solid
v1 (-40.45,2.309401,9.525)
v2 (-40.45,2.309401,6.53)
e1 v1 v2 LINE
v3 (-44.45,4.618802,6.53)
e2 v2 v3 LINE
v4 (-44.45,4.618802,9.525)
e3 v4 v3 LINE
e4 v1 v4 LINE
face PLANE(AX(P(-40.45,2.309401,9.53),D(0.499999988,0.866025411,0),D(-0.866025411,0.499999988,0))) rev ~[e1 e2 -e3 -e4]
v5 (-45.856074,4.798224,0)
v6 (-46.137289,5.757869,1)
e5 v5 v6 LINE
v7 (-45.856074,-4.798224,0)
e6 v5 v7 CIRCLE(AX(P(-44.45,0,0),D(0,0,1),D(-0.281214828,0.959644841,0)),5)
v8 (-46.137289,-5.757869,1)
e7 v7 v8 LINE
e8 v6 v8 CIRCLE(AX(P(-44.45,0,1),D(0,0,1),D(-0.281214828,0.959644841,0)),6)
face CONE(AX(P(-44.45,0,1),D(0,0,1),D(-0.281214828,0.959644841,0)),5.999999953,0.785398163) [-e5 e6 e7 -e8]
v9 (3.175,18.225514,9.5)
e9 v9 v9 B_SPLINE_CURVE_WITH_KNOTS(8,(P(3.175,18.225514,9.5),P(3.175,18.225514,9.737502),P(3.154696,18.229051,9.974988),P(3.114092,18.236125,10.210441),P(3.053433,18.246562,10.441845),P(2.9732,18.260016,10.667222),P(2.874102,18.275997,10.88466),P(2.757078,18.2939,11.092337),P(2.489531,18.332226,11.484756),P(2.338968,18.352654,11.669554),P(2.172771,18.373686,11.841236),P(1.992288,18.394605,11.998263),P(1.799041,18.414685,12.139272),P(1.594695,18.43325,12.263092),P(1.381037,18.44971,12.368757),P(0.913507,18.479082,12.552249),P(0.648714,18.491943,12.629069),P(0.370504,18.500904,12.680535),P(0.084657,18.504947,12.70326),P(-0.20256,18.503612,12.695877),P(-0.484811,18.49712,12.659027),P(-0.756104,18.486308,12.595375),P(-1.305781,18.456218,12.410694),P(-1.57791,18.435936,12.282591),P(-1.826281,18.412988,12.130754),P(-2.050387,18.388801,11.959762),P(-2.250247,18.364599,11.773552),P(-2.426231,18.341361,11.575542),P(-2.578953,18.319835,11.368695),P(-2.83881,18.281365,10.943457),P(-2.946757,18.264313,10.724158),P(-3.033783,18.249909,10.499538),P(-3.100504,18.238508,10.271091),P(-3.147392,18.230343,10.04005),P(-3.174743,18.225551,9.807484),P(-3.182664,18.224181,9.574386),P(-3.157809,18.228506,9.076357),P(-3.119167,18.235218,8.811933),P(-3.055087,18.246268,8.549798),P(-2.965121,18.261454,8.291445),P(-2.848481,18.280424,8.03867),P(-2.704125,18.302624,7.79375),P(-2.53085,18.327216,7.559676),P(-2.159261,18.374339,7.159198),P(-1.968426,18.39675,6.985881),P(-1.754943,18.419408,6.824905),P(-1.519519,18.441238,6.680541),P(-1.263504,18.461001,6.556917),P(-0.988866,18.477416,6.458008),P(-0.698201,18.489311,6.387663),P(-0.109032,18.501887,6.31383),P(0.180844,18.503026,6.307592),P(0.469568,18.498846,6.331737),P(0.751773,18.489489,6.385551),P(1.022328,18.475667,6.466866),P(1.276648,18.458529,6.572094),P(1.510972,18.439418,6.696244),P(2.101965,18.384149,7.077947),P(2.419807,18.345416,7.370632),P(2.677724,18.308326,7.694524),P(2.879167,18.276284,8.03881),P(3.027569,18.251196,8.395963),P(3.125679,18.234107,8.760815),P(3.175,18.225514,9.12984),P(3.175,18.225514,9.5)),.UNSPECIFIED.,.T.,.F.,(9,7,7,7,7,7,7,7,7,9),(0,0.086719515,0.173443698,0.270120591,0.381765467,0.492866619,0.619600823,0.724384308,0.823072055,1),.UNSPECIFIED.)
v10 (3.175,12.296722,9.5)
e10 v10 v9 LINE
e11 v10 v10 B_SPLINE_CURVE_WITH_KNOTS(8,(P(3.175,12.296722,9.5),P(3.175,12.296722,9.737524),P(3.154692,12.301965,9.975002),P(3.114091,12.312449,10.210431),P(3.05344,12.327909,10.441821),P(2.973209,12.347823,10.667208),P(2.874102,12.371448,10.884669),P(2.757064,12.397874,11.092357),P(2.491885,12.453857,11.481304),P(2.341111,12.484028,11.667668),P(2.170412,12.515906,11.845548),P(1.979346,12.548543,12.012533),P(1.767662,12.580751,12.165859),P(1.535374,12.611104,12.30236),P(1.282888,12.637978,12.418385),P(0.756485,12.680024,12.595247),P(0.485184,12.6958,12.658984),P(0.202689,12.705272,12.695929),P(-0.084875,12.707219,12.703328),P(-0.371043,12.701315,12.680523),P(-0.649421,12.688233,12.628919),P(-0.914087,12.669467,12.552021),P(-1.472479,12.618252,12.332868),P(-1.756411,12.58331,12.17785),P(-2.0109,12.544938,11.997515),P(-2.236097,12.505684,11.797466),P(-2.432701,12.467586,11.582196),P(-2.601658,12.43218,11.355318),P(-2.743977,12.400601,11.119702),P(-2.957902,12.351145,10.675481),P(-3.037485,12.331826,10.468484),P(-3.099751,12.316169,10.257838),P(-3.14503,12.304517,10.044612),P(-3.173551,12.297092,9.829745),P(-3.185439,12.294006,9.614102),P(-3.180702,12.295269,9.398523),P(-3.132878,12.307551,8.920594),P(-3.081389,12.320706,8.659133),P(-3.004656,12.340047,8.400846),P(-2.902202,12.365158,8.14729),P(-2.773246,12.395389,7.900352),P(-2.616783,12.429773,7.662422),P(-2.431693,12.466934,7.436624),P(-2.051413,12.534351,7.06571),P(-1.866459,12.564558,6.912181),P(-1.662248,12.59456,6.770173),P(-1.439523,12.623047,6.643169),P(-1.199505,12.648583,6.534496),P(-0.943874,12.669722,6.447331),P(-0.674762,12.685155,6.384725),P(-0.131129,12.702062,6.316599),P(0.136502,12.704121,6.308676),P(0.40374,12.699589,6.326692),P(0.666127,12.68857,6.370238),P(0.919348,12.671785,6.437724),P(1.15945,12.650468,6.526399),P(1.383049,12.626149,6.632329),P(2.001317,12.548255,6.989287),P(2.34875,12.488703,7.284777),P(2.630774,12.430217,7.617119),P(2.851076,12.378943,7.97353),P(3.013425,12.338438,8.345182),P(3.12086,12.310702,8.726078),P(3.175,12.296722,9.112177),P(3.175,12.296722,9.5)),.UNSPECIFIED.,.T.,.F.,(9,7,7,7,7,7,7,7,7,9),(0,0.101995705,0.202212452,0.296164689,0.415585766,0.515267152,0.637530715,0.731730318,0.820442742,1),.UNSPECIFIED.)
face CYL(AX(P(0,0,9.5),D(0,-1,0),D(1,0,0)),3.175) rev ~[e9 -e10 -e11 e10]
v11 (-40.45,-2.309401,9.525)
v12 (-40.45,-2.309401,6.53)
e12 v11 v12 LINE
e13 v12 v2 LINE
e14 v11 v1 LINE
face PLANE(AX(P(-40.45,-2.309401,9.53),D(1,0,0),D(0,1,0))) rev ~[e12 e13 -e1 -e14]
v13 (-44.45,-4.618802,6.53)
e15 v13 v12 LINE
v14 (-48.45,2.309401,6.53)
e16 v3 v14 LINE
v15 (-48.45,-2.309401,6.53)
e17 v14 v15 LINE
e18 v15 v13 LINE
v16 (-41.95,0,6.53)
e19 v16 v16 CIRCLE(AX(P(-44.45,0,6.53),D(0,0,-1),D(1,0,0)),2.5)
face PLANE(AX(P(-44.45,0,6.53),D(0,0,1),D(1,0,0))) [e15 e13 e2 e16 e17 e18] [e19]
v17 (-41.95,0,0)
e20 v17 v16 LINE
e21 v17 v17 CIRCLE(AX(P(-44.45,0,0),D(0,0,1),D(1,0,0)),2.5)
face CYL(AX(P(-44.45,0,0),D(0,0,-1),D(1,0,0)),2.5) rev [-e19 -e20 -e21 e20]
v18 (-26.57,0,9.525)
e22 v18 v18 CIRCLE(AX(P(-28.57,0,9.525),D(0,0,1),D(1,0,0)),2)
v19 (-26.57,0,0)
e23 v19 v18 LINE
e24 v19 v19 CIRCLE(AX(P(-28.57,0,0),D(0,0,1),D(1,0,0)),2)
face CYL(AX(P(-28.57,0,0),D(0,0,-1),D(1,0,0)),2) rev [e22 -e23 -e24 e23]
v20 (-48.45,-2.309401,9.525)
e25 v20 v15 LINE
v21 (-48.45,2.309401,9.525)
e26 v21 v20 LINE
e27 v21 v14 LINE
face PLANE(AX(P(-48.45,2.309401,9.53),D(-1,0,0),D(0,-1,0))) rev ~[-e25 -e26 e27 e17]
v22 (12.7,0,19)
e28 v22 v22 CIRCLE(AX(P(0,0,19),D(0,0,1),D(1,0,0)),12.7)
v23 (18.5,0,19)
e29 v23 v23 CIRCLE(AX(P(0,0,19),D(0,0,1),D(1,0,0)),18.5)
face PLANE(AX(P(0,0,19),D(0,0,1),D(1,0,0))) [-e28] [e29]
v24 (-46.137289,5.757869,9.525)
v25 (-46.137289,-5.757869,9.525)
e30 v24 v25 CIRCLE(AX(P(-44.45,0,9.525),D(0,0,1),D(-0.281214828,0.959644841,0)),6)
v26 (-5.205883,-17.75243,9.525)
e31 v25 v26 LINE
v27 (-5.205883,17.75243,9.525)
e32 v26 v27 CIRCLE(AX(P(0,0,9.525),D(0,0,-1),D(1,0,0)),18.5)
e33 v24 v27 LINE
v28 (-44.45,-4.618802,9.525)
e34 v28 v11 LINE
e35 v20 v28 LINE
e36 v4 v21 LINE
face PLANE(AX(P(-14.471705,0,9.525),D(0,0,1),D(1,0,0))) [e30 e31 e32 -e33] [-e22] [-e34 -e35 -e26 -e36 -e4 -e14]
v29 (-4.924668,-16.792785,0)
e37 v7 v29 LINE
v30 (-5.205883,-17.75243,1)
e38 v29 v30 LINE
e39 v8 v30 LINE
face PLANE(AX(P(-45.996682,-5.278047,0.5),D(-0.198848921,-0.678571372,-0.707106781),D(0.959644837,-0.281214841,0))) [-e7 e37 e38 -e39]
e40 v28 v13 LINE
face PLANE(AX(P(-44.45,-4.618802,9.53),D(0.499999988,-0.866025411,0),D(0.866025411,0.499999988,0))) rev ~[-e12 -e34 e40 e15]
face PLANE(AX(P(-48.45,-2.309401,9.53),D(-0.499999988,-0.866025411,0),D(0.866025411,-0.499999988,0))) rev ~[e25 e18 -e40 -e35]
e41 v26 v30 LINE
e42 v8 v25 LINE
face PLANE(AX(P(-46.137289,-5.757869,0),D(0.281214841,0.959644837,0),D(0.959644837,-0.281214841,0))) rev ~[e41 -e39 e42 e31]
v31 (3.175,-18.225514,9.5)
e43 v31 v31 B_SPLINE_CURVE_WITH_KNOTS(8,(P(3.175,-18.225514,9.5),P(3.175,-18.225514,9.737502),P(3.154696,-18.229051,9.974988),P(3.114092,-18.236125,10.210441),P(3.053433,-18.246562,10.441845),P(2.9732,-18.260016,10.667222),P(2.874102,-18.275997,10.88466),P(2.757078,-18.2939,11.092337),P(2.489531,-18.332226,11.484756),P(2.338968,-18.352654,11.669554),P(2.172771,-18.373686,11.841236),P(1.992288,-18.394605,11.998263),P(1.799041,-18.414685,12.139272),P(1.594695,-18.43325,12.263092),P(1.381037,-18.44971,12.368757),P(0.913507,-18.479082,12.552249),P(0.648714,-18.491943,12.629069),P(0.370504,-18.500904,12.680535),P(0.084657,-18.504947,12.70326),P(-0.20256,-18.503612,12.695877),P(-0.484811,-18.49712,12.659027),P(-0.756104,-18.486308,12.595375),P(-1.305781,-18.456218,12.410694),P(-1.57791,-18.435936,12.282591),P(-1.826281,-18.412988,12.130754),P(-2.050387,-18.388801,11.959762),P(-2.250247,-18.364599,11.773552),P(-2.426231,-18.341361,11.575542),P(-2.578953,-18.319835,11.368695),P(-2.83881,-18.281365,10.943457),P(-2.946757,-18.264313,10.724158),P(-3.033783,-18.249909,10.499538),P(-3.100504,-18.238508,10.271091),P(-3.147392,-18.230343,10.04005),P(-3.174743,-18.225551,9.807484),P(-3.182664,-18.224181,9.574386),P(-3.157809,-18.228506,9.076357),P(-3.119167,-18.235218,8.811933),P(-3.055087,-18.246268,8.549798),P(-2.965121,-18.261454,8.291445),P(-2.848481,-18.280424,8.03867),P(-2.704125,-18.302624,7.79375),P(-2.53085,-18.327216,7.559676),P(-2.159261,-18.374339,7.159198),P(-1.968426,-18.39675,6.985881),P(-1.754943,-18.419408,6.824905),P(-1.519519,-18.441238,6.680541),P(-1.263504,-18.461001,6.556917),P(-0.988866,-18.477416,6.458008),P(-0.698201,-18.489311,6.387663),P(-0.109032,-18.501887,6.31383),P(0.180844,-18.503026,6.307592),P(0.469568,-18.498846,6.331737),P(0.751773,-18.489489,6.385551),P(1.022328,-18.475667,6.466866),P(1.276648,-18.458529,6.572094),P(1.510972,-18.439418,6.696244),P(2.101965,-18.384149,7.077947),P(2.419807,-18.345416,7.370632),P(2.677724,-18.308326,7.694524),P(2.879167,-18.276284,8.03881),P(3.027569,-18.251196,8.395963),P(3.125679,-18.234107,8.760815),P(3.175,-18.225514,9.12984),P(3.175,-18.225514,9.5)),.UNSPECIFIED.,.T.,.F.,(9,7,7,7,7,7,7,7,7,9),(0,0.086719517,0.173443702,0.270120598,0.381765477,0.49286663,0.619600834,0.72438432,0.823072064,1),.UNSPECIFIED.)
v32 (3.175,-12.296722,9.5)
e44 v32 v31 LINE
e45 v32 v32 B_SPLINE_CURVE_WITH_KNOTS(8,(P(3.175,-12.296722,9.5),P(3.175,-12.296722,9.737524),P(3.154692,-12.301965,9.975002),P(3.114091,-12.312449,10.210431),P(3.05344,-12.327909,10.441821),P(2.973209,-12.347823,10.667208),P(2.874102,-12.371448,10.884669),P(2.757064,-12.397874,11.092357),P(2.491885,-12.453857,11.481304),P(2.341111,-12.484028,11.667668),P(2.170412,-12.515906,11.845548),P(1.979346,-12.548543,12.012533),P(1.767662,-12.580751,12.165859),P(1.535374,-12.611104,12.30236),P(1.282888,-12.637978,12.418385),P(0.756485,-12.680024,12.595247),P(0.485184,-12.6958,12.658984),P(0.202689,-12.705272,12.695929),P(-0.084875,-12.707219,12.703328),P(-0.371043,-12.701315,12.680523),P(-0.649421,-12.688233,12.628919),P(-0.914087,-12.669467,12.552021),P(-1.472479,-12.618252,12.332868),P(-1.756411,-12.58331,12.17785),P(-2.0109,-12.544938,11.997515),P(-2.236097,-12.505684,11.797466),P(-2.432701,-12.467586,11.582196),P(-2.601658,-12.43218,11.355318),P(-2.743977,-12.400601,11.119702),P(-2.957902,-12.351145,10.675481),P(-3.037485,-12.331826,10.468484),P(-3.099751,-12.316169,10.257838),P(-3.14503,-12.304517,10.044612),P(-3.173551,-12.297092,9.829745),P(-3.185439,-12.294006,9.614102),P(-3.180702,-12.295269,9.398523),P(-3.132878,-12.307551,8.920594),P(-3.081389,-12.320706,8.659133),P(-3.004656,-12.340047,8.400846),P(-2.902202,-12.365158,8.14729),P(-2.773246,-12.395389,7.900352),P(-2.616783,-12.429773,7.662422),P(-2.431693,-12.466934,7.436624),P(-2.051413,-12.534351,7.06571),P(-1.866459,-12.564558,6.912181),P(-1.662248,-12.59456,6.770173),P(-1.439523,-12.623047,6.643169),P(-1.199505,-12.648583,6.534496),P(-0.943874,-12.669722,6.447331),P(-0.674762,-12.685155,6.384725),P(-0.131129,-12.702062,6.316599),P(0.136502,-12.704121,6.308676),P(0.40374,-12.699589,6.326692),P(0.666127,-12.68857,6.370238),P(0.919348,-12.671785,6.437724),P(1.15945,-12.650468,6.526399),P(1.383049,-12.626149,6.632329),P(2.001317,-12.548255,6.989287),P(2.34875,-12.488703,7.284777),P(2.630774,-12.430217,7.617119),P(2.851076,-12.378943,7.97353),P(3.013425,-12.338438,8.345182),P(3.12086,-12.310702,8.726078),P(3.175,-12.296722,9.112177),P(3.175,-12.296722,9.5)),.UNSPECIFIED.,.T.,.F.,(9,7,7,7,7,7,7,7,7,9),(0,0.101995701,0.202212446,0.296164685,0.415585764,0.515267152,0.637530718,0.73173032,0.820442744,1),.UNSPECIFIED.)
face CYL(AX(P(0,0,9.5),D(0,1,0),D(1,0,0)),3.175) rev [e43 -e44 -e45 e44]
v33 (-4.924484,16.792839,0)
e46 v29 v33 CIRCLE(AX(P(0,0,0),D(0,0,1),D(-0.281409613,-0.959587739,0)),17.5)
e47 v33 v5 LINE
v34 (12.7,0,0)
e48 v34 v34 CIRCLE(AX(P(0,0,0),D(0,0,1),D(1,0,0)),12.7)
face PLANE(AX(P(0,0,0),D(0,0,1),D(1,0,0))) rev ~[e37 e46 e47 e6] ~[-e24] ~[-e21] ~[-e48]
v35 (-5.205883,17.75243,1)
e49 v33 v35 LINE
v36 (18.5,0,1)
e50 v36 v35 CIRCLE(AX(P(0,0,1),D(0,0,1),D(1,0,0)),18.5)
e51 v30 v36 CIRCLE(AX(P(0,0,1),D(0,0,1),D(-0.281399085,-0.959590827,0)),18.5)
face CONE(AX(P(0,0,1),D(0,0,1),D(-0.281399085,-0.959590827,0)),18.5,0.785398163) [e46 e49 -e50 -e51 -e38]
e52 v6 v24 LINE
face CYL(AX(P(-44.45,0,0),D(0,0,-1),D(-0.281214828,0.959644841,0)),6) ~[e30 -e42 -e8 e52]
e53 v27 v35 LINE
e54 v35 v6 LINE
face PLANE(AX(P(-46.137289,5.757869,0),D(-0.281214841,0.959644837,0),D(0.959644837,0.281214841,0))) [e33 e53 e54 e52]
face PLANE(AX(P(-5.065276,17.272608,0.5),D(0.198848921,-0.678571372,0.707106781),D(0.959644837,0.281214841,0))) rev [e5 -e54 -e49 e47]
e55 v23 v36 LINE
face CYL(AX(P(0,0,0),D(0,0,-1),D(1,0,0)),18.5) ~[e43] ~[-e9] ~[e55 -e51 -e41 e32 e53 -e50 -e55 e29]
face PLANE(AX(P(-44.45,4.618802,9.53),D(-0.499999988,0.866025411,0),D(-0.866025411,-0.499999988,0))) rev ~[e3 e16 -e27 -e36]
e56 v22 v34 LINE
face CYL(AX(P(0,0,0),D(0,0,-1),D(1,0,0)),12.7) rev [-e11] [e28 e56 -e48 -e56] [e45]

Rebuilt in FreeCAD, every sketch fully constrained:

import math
import FreeCAD as App
import Part
import Sketcher
from FreeCAD import Vector
Q = App.Units.Quantity


def edges_at(feature, points):
    """Names of the edges that pass closest to the given points."""
    edges = feature.Shape.Edges
    near = lambda p: min(range(len(edges)), key=lambda i: edges[i].distToShape(Part.Vertex(*p))[0])
    return sorted({f"Edge{near(p) + 1}" for p in points})

doc = App.newDocument("Part")
params = doc.addObject("Spreadsheet::Sheet", "Params")
for row, (alias, value) in enumerate([
    ("sketch1_diameter", "5 mm"),
    ("sketch1_diameter2", "4 mm"),
    ("sketch1_radius", "6 mm"),
    ("sketch1_diameter3", "25.4 mm"),
    ("sketch1_radius2", "18.5 mm"),
    ("pad1_length", "9.525 mm"),
    ("sketch2_diameter", "37 mm"),
    ("sketch2_diameter2", "25.4 mm"),
    ("pad2_length", "19 mm"),
    ("sketch3_diameter", "6.35 mm"),
    ("pocket2_length", "3 mm"),
    ("chamfer_size", "1 mm"),
], start=1):
    params.set(f"A{row}", alias)
    params.set(f"B{row}", "=" + value)
    params.setAlias(f"B{row}", alias)

body = doc.addObject("PartDesign::Body", "Body")

sketch1 = body.newObject("Sketcher::SketchObject", "Sketch")
sketch1.AttachmentSupport = (doc.getObject("XY_Plane"), [""])
sketch1.MapMode = "FlatFace"
sketch1.addGeometry([
    Part.ArcOfCircle(Part.Circle(Vector(-44.5, 0, 0), Vector(0, 0, 1), 6), math.radians(106), math.radians(254)),
    Part.LineSegment(Vector(-46.1, -5.8, 0), Vector(-5.2, -17.8, 0)),
    Part.ArcOfCircle(Part.Circle(Vector(0, 0, 0), Vector(0, 0, 1), 18.5), math.radians(-106), math.radians(106)),
    Part.LineSegment(Vector(-5.2, 17.8, 0), Vector(-46.1, 5.8, 0)),
    Part.Circle(Vector(-44.5, 0, 0), Vector(0, 0, 1), 2.5),
    Part.Circle(Vector(-28.6, 0, 0), Vector(0, 0, 1), 2),
    Part.Circle(Vector(0, 0, 0), Vector(0, 0, 1), 12.7),
], False)
sketch1.addConstraint([
    Sketcher.Constraint("Tangent", 0, 2, 1, 1),
    Sketcher.Constraint("Tangent", 1, 2, 2, 1),
    Sketcher.Constraint("Tangent", 2, 2, 3, 1),
    Sketcher.Constraint("Tangent", 3, 2, 0, 1),
    Sketcher.Constraint("Coincident", 2, 3, -1, 1),
    Sketcher.Constraint("Coincident", 6, 3, -1, 1),
    Sketcher.Constraint("Coincident", 4, 3, 0, 3),
    Sketcher.Constraint("PointOnObject", 0, 3, -1),
    Sketcher.Constraint("PointOnObject", 5, 3, -1),
    Sketcher.Constraint("Diameter", 4, Q("5 mm")),
    Sketcher.Constraint("Diameter", 5, Q("4 mm")),
    Sketcher.Constraint("Radius", 0, Q("6 mm")),
    Sketcher.Constraint("Diameter", 6, Q("25.4 mm")),
    Sketcher.Constraint("Radius", 2, Q("18.5 mm")),
    Sketcher.Constraint("DistanceX", 0, 3, -1, 1, Q("44.45 mm")),
    Sketcher.Constraint("DistanceX", 5, 3, -1, 1, Q("28.57 mm")),
])
sketch1.setExpression("Constraints[9]", "Params.sketch1_diameter")
sketch1.setExpression("Constraints[10]", "Params.sketch1_diameter2")
sketch1.setExpression("Constraints[11]", "Params.sketch1_radius")
sketch1.setExpression("Constraints[12]", "Params.sketch1_diameter3")
sketch1.setExpression("Constraints[13]", "Params.sketch1_radius2")
pad1 = body.newObject("PartDesign::Pad", "Pad")
pad1.Profile = sketch1
pad1.setExpression("Length", "Params.pad1_length")

sketch2 = body.newObject("Sketcher::SketchObject", "Sketch001")
sketch2.AttachmentSupport = (doc.getObject("XY_Plane"), [""])
sketch2.MapMode = "FlatFace"
sketch2.addGeometry([
    Part.Circle(Vector(0, 0, 0), Vector(0, 0, 1), 18),
    Part.Circle(Vector(0, 0, 0), Vector(0, 0, 1), 13),
], False)
sketch2.addConstraint([
    Sketcher.Constraint("Coincident", 0, 3, -1, 1),
    Sketcher.Constraint("Coincident", 1, 3, -1, 1),
    Sketcher.Constraint("Diameter", 0, Q("37 mm")),
    Sketcher.Constraint("Diameter", 1, Q("25.4 mm")),
])
sketch2.setExpression("Constraints[2]", "Params.sketch2_diameter")
sketch2.setExpression("Constraints[3]", "Params.sketch2_diameter2")
pad2 = body.newObject("PartDesign::Pad", "Pad001")
pad2.Profile = sketch2
pad2.setExpression("Length", "Params.pad2_length")

sketch3 = body.newObject("Sketcher::SketchObject", "Sketch002")
sketch3.AttachmentSupport = (doc.getObject("XZ_Plane"), [""])
sketch3.MapMode = "FlatFace"
sketch3.addGeometry(Part.Circle(Vector(0, 9.5, 0), Vector(0, 0, 1), 3.2), False)
sketch3.addConstraint([
    Sketcher.Constraint("PointOnObject", 0, 3, -2),
    Sketcher.Constraint("Diameter", 0, Q("6.35 mm")),
    Sketcher.Constraint("DistanceY", -1, 1, 0, 3, Q("9.5 mm")),
])
sketch3.setExpression("Constraints[1]", "Params.sketch3_diameter")
pocket1 = body.newObject("PartDesign::Pocket", "Pocket")
pocket1.Profile = sketch3
pocket1.Type = "ThroughAll"
pocket1.Midplane = True

sketch4 = body.newObject("Sketcher::SketchObject", "Sketch003")
sketch4.AttachmentSupport = (doc.getObject("XY_Plane"), [""])
sketch4.MapMode = "FlatFace"
sketch4.AttachmentOffset = App.Placement(Vector(0, 0, 9.53), App.Rotation())
sketch4.addGeometry([
    Part.LineSegment(Vector(-44.5, 4.6, 0), Vector(-48.5, 2.3, 0)),
    Part.LineSegment(Vector(-48.5, 2.3, 0), Vector(-48.5, -2.3, 0)),
    Part.LineSegment(Vector(-48.5, -2.3, 0), Vector(-44.5, -4.6, 0)),
    Part.LineSegment(Vector(-44.5, -4.6, 0), Vector(-40.5, -2.3, 0)),
    Part.LineSegment(Vector(-40.5, -2.3, 0), Vector(-40.5, 2.3, 0)),
    Part.LineSegment(Vector(-40.5, 2.3, 0), Vector(-44.5, 4.6, 0)),
], False)
sketch4.addConstraint([
    Sketcher.Constraint("Coincident", 0, 2, 1, 1),
    Sketcher.Constraint("Coincident", 1, 2, 2, 1),
    Sketcher.Constraint("Coincident", 2, 2, 3, 1),
    Sketcher.Constraint("Coincident", 3, 2, 4, 1),
    Sketcher.Constraint("Coincident", 4, 2, 5, 1),
    Sketcher.Constraint("Coincident", 5, 2, 0, 1),
    Sketcher.Constraint("Vertical", 1),
    Sketcher.Constraint("Vertical", 4),
    Sketcher.Constraint("Symmetric", 2, 2, 5, 2, -1),
    Sketcher.Constraint("Parallel", 0, 3),
    Sketcher.Constraint("Parallel", 2, 5),
    Sketcher.Constraint("Horizontal", 1, 2, 3, 2),
    Sketcher.Constraint("Horizontal", 0, 2, 4, 2),
    Sketcher.Constraint("Angle", 0, Q("-150.000001 deg")),
    Sketcher.Constraint("DistanceX", 1, 2, 2, 2, Q("4 mm")),
    Sketcher.Constraint("DistanceX", 0, 2, -1, 1, Q("48.45 mm")),
    Sketcher.Constraint("DistanceY", 1, 2, 1, 1, Q("4.618802 mm")),
])
pocket2 = body.newObject("PartDesign::Pocket", "Pocket001")
pocket2.Profile = sketch4
pocket2.setExpression("Length", "Params.pocket2_length")
doc.recompute()

chamfer = body.newObject("PartDesign::Chamfer", "Chamfer")
chamfer.Base = (pocket2, edges_at(pocket2, [(-25.672, -11.755, 0)]))
chamfer.setExpression("Size", "Params.chamfer_size")

doc.recompute()
